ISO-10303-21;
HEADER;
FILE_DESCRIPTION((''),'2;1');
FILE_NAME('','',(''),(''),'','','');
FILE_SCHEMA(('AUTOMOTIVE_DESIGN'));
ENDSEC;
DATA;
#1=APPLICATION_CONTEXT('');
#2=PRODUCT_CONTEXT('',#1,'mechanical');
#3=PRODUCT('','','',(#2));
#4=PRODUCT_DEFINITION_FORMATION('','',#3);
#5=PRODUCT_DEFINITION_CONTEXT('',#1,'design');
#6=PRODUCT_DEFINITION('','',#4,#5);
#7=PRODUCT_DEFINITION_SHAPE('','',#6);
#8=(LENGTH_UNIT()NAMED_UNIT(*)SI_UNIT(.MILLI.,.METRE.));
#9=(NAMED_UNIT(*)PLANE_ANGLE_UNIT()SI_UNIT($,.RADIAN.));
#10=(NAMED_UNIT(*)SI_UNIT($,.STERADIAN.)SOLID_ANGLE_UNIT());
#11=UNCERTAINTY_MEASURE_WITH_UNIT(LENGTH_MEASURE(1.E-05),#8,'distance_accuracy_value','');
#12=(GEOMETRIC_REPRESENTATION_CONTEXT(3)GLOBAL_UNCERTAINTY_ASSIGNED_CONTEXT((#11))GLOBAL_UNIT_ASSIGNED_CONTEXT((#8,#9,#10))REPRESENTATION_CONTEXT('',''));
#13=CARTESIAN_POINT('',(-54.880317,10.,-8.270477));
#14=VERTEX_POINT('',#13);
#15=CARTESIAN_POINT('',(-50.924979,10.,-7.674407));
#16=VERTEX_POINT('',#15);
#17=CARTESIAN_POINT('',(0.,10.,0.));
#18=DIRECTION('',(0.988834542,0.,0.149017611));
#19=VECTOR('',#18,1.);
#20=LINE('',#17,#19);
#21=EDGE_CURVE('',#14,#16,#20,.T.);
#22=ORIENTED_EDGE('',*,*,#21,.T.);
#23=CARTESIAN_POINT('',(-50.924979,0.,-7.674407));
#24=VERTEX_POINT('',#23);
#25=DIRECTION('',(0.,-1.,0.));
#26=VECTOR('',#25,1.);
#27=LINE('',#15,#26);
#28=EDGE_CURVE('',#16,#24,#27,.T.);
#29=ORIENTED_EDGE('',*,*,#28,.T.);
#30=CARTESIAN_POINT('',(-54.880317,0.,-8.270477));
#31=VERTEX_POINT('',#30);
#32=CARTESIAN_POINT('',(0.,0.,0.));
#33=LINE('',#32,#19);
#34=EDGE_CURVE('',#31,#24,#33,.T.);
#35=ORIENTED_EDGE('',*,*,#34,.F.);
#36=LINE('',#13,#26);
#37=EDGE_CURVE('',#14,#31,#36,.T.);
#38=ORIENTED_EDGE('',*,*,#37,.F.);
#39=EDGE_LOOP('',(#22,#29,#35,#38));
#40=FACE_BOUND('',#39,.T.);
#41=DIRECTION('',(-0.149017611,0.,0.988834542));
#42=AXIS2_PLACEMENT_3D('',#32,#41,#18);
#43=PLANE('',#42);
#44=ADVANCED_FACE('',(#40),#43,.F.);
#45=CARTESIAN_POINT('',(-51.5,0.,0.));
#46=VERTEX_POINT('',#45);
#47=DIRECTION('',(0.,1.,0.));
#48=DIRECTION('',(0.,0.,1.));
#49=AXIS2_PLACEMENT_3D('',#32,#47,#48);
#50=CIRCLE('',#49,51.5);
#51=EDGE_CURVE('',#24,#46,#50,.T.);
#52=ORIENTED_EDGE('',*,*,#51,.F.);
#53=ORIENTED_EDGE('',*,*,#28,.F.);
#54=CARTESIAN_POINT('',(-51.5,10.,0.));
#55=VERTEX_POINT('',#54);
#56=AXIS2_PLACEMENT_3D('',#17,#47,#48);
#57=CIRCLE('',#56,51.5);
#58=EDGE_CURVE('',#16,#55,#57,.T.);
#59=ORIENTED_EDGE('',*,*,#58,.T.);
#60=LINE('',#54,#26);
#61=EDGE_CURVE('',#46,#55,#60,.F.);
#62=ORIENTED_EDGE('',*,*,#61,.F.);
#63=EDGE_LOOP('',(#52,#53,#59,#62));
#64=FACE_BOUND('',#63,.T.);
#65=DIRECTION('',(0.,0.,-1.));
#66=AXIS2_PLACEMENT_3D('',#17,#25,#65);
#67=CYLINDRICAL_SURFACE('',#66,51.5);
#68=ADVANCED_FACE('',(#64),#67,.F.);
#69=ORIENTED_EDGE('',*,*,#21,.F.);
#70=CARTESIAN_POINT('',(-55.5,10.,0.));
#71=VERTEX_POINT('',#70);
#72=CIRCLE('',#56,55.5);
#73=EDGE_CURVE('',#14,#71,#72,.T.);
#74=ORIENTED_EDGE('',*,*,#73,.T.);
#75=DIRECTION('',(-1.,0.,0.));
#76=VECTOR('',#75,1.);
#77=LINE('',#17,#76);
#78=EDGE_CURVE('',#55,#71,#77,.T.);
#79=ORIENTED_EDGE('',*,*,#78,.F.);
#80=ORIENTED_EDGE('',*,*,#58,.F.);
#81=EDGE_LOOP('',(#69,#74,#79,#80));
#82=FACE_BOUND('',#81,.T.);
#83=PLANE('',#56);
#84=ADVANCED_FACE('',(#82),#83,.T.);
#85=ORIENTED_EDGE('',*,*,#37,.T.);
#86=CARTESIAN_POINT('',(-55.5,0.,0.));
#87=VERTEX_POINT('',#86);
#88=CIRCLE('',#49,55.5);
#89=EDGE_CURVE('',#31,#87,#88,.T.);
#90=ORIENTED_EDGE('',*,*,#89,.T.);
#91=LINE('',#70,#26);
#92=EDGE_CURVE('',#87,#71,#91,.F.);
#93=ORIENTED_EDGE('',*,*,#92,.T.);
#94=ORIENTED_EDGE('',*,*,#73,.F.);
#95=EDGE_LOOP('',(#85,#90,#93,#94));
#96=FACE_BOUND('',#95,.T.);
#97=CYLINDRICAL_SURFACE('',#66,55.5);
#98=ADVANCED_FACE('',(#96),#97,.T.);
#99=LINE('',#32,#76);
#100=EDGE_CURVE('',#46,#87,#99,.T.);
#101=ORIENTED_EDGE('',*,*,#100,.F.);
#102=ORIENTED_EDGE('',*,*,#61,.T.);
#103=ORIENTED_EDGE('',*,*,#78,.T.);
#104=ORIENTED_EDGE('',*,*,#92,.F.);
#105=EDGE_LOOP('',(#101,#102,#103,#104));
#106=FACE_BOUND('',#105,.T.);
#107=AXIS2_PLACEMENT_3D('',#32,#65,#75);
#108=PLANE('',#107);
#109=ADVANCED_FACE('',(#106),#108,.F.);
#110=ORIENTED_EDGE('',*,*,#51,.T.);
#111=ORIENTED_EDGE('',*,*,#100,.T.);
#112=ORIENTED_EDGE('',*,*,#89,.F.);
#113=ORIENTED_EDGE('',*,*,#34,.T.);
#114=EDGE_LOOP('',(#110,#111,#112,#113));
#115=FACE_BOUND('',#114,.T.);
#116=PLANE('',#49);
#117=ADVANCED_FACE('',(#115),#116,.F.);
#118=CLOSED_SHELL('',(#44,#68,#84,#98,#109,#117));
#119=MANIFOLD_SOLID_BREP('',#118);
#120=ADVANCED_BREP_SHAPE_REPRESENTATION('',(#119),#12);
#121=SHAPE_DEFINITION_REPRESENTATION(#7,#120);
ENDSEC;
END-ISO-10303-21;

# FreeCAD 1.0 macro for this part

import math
import FreeCAD as App
import Part
import Sketcher
Q = App.Units.Quantity

doc = App.newDocument("Part")
params = doc.addObject("Spreadsheet::Sheet", "Params")
for row, (alias, value) in enumerate([
    ("sketch1_diameter", "111 mm"),
    ("sketch1_diameter2", "103 mm"),
    ("pad1_length", "10 mm"),
], start=1):
    params.set(f"A{row}", alias)
    params.set(f"B{row}", "=" + value)
    params.setAlias(f"B{row}", alias)

body = doc.addObject("PartDesign::Body", "Body")

# Sketch on XZ plane
sketch1 = body.newObject("Sketcher::SketchObject", "Sketch")
sketch1.AttachmentSupport = (doc.getObject("XZ_Plane"), [""])
sketch1.MapMode = "FlatFace"
sketch1.addGeometry(Part.Circle(App.Vector(0, 0, 0), App.Vector(0, 0, 1), 55.5), False)
sketch1.addGeometry(Part.Circle(App.Vector(0, 0, 0), App.Vector(0, 0, 1), 51.5), False)
sketch1.addConstraint(Sketcher.Constraint("Coincident", 0, 3, -1, 1))
sketch1.addConstraint(Sketcher.Constraint("Coincident", 1, 3, -1, 1))
sketch1.addConstraint(Sketcher.Constraint("Diameter", 0, 111.0))
sketch1.addConstraint(Sketcher.Constraint("Diameter", 1, 103.0))
sketch1.setExpression("Constraints[2]", "Params.sketch1_diameter")
sketch1.setExpression("Constraints[3]", "Params.sketch1_diameter2")
pad1 = body.newObject("PartDesign::Pad", "Pad")
pad1.Profile = sketch1
pad1.setExpression("Length", "Params.pad1_length")
pad1.Reversed = True

# Sketch on XZ plane
sketch2 = body.newObject("Sketcher::SketchObject", "Sketch001")
sketch2.AttachmentSupport = (doc.getObject("XZ_Plane"), [""])
sketch2.MapMode = "FlatFace"
sketch2.AttachmentOffset = App.Placement(App.Vector(0, 0, -10), App.Rotation())
sketch2.addGeometry(Part.LineSegment(App.Vector(0, 0, 0), App.Vector(-65.560036, 0, 0)), False)
sketch2.addGeometry(Part.ArcOfCircle(Part.Circle(App.Vector(0, 0, 0), App.Vector(0, 0, 1), 65.560036), math.radians(-171.43), math.radians(180)), False)
sketch2.addGeometry(Part.LineSegment(App.Vector(-64.828028, -9.7696, 0), App.Vector(0, 0, 0)), False)
sketch2.addConstraint(Sketcher.Constraint("Coincident", 0, 2, 1, 2))
sketch2.addConstraint(Sketcher.Constraint("Coincident", 1, 1, 2, 1))
sketch2.addConstraint(Sketcher.Constraint("Coincident", 2, 2, 0, 1))
sketch2.addConstraint(Sketcher.Constraint("Horizontal", 0))
sketch2.addConstraint(Sketcher.Constraint("Coincident", 1, 3, -1, 1))
sketch2.addConstraint(Sketcher.Constraint("Coincident", 2, 2, -1, 1))
sketch2.addConstraint(Sketcher.Constraint("Angle", 2, Q("8.57 deg")))
sketch2.addConstraint(Sketcher.Constraint("Radius", 1, 65.560036))
pocket1 = body.newObject("PartDesign::Pocket", "Pocket")
pocket1.Profile = sketch2
pocket1.Type = "ThroughAll"
pocket1.Reversed = True

doc.recompute()
